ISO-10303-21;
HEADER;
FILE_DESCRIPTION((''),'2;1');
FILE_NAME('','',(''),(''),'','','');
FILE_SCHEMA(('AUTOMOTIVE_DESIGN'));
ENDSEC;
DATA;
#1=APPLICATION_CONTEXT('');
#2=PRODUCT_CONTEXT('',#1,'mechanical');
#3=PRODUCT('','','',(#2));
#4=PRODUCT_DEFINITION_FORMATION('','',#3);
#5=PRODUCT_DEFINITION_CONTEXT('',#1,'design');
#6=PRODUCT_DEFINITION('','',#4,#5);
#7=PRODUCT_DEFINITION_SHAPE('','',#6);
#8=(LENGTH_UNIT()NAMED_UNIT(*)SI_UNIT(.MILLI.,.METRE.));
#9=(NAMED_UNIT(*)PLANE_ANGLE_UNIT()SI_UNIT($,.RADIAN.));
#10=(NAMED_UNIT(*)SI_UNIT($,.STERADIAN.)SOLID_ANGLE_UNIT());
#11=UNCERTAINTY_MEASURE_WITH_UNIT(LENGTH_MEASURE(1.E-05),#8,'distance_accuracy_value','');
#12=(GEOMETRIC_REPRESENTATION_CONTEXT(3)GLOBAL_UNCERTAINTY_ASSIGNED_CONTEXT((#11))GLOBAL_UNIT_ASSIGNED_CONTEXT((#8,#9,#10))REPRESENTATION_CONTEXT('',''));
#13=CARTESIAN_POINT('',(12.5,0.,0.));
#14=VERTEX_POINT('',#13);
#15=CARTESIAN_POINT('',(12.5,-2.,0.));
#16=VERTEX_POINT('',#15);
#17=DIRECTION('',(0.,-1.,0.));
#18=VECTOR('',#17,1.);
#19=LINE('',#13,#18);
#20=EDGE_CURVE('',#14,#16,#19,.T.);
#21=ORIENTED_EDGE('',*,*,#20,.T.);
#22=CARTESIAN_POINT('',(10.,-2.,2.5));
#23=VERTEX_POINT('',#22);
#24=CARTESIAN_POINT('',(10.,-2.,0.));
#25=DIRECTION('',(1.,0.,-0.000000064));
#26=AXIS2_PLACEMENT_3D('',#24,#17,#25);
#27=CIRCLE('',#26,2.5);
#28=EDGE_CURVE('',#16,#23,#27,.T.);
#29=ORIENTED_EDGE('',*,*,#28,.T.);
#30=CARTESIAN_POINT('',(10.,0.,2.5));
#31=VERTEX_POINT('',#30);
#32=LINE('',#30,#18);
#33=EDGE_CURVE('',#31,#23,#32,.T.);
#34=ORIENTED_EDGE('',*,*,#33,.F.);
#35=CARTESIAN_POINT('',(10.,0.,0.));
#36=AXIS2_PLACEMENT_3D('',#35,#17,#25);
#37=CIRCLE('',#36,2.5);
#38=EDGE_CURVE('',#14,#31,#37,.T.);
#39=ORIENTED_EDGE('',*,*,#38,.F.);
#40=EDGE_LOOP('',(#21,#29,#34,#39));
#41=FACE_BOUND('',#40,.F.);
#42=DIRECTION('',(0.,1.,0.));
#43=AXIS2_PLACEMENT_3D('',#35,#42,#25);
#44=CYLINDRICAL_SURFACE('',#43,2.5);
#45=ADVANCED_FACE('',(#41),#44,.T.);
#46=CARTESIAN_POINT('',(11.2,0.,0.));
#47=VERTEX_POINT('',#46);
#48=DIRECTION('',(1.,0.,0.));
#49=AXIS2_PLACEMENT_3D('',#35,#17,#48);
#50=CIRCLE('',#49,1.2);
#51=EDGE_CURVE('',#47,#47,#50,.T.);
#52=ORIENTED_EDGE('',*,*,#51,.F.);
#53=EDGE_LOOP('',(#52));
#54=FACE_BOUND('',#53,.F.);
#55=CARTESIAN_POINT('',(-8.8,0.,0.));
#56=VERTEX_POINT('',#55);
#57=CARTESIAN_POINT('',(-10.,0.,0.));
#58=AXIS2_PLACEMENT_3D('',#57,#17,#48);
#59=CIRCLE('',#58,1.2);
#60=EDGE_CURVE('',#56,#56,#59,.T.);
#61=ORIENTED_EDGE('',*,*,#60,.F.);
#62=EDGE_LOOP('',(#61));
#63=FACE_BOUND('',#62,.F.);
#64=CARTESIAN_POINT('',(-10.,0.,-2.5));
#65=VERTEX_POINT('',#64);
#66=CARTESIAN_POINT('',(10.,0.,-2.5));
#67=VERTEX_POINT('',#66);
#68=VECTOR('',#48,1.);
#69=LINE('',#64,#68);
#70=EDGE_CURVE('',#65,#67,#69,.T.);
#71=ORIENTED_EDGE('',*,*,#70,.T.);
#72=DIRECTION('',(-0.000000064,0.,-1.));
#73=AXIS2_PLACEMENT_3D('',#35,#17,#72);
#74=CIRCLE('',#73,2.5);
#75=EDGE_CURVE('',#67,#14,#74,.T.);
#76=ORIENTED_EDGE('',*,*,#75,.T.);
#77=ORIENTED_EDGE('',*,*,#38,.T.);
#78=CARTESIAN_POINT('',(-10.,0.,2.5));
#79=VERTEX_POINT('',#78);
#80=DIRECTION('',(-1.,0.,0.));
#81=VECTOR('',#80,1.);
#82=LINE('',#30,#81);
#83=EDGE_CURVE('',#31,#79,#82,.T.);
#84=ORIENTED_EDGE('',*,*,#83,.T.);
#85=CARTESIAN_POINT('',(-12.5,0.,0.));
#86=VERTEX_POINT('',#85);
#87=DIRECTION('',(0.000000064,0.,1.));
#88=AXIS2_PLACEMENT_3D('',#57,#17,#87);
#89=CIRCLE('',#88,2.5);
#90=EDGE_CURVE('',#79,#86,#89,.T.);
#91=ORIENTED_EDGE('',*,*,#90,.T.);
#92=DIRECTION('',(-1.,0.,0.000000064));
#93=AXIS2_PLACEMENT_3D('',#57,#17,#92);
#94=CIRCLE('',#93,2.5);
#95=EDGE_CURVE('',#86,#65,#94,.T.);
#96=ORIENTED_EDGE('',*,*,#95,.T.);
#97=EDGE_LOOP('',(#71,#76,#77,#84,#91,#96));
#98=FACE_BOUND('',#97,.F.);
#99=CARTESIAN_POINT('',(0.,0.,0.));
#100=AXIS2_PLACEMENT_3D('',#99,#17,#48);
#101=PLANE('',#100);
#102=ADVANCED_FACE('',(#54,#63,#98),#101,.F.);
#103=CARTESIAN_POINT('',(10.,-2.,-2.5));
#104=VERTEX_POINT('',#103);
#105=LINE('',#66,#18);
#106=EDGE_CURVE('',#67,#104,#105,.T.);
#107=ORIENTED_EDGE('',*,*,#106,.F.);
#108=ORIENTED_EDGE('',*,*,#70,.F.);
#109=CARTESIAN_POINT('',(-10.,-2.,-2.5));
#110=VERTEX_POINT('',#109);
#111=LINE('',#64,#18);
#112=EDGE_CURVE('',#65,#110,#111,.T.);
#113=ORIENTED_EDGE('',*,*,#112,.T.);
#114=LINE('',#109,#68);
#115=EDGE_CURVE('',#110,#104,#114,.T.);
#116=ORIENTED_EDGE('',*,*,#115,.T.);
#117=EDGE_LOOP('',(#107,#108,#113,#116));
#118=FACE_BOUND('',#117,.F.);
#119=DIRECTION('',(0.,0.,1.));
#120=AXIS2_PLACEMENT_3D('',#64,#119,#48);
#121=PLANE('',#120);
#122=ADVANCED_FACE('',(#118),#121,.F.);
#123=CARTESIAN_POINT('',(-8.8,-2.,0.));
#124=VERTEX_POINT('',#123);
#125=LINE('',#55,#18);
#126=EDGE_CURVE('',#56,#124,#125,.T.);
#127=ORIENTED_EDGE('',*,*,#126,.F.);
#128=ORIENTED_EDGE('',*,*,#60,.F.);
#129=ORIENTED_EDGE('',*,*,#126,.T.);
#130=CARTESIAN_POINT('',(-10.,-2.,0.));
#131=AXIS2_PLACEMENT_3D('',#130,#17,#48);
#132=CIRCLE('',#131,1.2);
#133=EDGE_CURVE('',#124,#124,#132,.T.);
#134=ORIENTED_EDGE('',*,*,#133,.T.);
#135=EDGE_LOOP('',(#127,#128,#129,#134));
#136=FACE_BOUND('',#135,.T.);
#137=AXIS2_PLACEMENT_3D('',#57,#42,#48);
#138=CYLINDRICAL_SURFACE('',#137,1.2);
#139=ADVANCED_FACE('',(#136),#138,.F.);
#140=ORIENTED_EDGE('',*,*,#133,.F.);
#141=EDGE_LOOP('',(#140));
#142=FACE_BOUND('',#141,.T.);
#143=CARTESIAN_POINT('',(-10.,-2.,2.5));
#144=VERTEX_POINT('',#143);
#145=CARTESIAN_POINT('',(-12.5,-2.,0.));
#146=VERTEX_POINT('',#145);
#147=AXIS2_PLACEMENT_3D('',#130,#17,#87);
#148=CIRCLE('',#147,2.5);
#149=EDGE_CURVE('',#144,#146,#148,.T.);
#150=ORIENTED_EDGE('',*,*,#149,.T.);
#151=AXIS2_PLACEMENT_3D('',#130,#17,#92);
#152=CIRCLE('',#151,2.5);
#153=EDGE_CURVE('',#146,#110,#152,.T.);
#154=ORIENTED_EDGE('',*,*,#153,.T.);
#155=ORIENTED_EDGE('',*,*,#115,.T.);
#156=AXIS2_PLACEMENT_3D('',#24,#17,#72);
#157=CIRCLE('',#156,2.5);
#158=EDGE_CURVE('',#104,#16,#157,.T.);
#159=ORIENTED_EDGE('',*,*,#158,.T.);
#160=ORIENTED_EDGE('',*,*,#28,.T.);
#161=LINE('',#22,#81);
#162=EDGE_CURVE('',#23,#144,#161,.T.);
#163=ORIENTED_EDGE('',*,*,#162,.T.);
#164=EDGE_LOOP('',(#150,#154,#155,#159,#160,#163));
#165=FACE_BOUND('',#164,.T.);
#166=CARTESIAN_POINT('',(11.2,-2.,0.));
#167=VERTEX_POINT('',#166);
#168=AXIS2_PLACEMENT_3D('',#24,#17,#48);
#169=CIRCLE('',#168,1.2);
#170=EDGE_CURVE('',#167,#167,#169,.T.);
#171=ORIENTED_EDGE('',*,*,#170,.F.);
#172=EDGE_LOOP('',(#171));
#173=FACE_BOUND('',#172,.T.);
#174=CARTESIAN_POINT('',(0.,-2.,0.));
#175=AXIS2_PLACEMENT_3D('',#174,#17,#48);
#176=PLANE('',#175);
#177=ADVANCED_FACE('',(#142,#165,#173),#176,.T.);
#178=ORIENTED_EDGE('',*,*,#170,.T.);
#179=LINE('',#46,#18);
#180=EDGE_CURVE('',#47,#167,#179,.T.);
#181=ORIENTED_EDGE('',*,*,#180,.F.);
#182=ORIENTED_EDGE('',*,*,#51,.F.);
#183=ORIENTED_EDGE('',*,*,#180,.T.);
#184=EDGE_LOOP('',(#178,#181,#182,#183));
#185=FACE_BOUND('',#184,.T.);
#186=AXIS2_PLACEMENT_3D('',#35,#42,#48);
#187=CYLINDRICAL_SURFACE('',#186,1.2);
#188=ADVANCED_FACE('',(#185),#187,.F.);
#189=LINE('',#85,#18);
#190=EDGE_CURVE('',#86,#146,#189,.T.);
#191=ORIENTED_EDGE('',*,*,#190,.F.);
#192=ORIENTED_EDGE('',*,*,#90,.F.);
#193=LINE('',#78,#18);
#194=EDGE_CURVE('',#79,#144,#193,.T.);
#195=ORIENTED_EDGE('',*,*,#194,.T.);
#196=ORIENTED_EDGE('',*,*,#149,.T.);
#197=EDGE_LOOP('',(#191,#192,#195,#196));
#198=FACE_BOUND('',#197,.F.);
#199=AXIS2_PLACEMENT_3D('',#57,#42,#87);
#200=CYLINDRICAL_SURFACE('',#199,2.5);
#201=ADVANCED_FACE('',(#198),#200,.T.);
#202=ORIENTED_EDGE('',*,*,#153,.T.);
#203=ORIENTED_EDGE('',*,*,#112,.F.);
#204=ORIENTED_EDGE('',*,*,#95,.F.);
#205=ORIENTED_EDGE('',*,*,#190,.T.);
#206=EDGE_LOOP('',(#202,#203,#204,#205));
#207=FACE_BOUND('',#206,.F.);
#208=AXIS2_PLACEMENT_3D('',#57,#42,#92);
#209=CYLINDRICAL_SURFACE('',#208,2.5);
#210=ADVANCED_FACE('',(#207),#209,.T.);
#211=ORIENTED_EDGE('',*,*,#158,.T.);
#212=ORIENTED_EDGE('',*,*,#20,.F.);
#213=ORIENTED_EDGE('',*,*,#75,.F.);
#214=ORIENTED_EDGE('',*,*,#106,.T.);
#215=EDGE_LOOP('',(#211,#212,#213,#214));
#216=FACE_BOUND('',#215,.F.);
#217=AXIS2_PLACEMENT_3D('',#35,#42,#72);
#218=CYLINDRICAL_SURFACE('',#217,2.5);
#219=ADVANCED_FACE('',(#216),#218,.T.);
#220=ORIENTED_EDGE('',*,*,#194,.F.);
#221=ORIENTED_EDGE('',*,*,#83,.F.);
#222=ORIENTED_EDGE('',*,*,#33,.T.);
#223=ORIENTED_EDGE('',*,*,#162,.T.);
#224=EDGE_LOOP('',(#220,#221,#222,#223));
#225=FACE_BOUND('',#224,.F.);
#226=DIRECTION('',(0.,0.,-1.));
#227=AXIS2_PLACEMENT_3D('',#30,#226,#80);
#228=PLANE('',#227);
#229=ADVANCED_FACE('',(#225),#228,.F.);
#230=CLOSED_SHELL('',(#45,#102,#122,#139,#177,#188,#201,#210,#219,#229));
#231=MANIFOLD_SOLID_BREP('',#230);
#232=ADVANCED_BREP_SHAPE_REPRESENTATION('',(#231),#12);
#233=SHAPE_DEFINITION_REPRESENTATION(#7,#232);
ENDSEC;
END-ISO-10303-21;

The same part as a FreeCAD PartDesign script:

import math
import FreeCAD as App
import Part
import Sketcher

V = App.Vector

doc = App.newDocument("Part")
body = doc.addObject("PartDesign::Body", "Body")

# Sketch on XZ plane
sketch1 = doc.addObject("Sketcher::SketchObject", "Sketch")
body.addObject(sketch1)
sketch1.AttachmentSupport = (doc.XZ_Plane, [""])
sketch1.MapMode = "FlatFace"
sketch1.addGeometry([
    Part.ArcOfCircle(Part.Circle(V(-10, 0, 0), V(0, 0, 1), 2.5), math.radians(90), math.radians(180)),  # 0
    Part.ArcOfCircle(Part.Circle(V(-10, 0, 0), V(0, 0, 1), 2.5), math.radians(180), math.radians(270)),  # 1
    Part.LineSegment(V(-10, -2.5, 0), V(10, -2.5, 0)),  # 2
    Part.ArcOfCircle(Part.Circle(V(10, 0, 0), V(0, 0, 1), 2.5), math.radians(-90), math.radians(0)),  # 3
    Part.ArcOfCircle(Part.Circle(V(10, 0, 0), V(0, 0, 1), 2.5), math.radians(0), math.radians(90)),  # 4
    Part.LineSegment(V(10, 2.5, 0), V(-10, 2.5, 0)),  # 5
    Part.Circle(V(-10, 0, 0), V(0, 0, 1), 1.2),  # 6
    Part.Circle(V(10, 0, 0), V(0, 0, 1), 1.2),  # 7
], False)
sketch1.addConstraint([
    Sketcher.Constraint("Tangent", 0, 2, 1, 1),
    Sketcher.Constraint("Tangent", 1, 2, 2, 1),
    Sketcher.Constraint("Tangent", 2, 2, 3, 1),
    Sketcher.Constraint("Tangent", 3, 2, 4, 1),
    Sketcher.Constraint("Tangent", 4, 2, 5, 1),
    Sketcher.Constraint("Tangent", 5, 2, 0, 1),
    Sketcher.Constraint("Horizontal", 2),
    Sketcher.Constraint("Horizontal", 5),
    Sketcher.Constraint("Coincident", 6, 3, 0, 3),
    Sketcher.Constraint("Coincident", 7, 3, 3, 3),
    Sketcher.Constraint("Equal", 0, 1),
    Sketcher.Constraint("Equal", 1, 3),
    Sketcher.Constraint("Equal", 6, 7),
    Sketcher.Constraint("Symmetric", 0, 3, 3, 3, -1, 1),
    Sketcher.Constraint("PointOnObject", 0, 2, -1),
    Sketcher.Constraint("PointOnObject", 3, 2, -1),
    Sketcher.Constraint("Diameter", 6, 2.4),
    Sketcher.Constraint("Radius", 0, 2.5),
    Sketcher.Constraint("DistanceX", 2, 1, 2, 2, 20.0),
])
pad1 = doc.addObject("PartDesign::Pad", "Pad")
body.addObject(pad1)
pad1.Profile = sketch1
pad1.Length = 2

doc.recompute()
